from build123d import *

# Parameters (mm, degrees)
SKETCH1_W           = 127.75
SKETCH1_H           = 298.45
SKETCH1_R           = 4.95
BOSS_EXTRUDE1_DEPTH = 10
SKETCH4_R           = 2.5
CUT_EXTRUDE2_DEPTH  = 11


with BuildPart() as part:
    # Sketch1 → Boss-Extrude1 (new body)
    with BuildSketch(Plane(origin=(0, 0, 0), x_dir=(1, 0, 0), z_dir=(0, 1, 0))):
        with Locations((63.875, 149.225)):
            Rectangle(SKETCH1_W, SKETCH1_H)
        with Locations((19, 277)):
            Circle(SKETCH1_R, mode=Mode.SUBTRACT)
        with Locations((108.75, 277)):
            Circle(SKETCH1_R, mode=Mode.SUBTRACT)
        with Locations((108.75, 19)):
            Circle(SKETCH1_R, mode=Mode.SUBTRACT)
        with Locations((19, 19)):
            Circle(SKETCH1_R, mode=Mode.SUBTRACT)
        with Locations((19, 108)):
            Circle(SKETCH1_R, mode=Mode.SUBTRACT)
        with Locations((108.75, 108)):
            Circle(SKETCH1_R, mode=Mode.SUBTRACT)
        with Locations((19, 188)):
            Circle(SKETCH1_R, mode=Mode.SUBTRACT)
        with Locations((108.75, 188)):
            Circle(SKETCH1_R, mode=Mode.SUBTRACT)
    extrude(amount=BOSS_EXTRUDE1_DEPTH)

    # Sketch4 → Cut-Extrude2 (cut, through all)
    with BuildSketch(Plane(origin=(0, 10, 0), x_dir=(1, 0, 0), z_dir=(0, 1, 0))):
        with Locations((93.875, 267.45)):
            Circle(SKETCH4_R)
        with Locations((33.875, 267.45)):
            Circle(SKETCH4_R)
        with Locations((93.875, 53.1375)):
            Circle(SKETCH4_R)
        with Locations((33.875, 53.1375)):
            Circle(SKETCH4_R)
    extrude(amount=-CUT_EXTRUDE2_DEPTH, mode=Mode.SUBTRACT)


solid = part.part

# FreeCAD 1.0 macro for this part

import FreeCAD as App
import Part
import Sketcher


def add_polygon(sketch, points):
    """Adds a closed chain of lines whose ends are joined by coincident constraints."""
    first, n = sketch.GeometryCount, len(points)
    for a, b in zip(points, points[1:] + points[:1]):
        sketch.addGeometry(Part.LineSegment(App.Vector(*a, 0), App.Vector(*b, 0)), False)
    for i in range(n):
        sketch.addConstraint(Sketcher.Constraint("Coincident", first + i, 2, first + (i + 1) % n, 1))

doc = App.newDocument("Part")
body = doc.addObject("PartDesign::Body", "Body")

# Sketch on XZ plane
sketch1 = body.newObject("Sketcher::SketchObject", "Sketch")
sketch1.AttachmentSupport = (doc.getObject("XZ_Plane"), [""])
sketch1.MapMode = "FlatFace"
add_polygon(sketch1, [(0, -298.4), (0, 0), (127.8, 0), (127.8, -298.4)])  # lines 0-3
sketch1.addGeometry(Part.Circle(App.Vector(19, -19, 0), App.Vector(0, 0, 1), 5), False)  # 4
sketch1.addGeometry(Part.Circle(App.Vector(19, -108, 0), App.Vector(0, 0, 1), 5), False)  # 5
sketch1.addGeometry(Part.Circle(App.Vector(108.8, -19, 0), App.Vector(0, 0, 1), 5), False)  # 6
sketch1.addGeometry(Part.Circle(App.Vector(108.8, -108, 0), App.Vector(0, 0, 1), 5), False)  # 7
sketch1.addGeometry(Part.Circle(App.Vector(19, -188, 0), App.Vector(0, 0, 1), 5), False)  # 8
sketch1.addGeometry(Part.Circle(App.Vector(19, -277, 0), App.Vector(0, 0, 1), 5), False)  # 9
sketch1.addGeometry(Part.Circle(App.Vector(108.8, -188, 0), App.Vector(0, 0, 1), 5), False)  # 10
sketch1.addGeometry(Part.Circle(App.Vector(108.8, -277, 0), App.Vector(0, 0, 1), 5), False)  # 11
sketch1.addConstraint([
    Sketcher.Constraint("Vertical", 0),
    Sketcher.Constraint("Horizontal", 1),
    Sketcher.Constraint("Vertical", 2),
    Sketcher.Constraint("Horizontal", 3),
    Sketcher.Constraint("Coincident", 0, 2, -1, 1),
    Sketcher.Constraint("Equal", 4, 5),
    Sketcher.Constraint("Equal", 5, 6),
    Sketcher.Constraint("Equal", 6, 7),
    Sketcher.Constraint("Equal", 7, 8),
    Sketcher.Constraint("Equal", 8, 9),
    Sketcher.Constraint("Equal", 9, 10),
    Sketcher.Constraint("Equal", 10, 11),
    Sketcher.Constraint("Horizontal", 4, 3, 6, 3),
    Sketcher.Constraint("Horizontal", 5, 3, 7, 3),
    Sketcher.Constraint("Horizontal", 8, 3, 10, 3),
    Sketcher.Constraint("Horizontal", 9, 3, 11, 3),
    Sketcher.Constraint("Vertical", 4, 3, 5, 3),
    Sketcher.Constraint("Vertical", 6, 3, 7, 3),
    Sketcher.Constraint("Vertical", 5, 3, 8, 3),
    Sketcher.Constraint("Vertical", 8, 3, 9, 3),
    Sketcher.Constraint("Vertical", 7, 3, 10, 3),
    Sketcher.Constraint("Vertical", 10, 3, 11, 3),
    Sketcher.Constraint("Diameter", 4, 9.9),
    Sketcher.Constraint("DistanceX", -1, 1, 4, 3, 19.0),
    Sketcher.Constraint("DistanceY", 4, 3, -1, 1, 19.0),
    Sketcher.Constraint("DistanceY", 5, 3, -1, 1, 108.0),
    Sketcher.Constraint("DistanceY", 8, 3, -1, 1, 188.0),
    Sketcher.Constraint("DistanceY", 9, 3, -1, 1, 277.0),
    Sketcher.Constraint("DistanceX", 6, 3, 1, 2, 19.0),
    Sketcher.Constraint("DistanceX", 1, 1, 1, 2, 127.75),
    Sketcher.Constraint("DistanceY", 0, 1, 0, 2, 298.45),
])
pad1 = body.newObject("PartDesign::Pad", "Pad")
pad1.Profile = sketch1
pad1.Length = 10
pad1.Reversed = True

# Sketch on XZ plane
sketch2 = body.newObject("Sketcher::SketchObject", "Sketch001")
sketch2.AttachmentSupport = (doc.getObject("XZ_Plane"), [""])
sketch2.MapMode = "FlatFace"
sketch2.AttachmentOffset = App.Placement(App.Vector(0, 0, -10), App.Rotation())
sketch2.addGeometry([
    Part.Circle(App.Vector(93.9, -267.4, 0), App.Vector(0, 0, 1), 2.5),
    Part.Circle(App.Vector(33.9, -267.4, 0), App.Vector(0, 0, 1), 2.5),
    Part.Circle(App.Vector(93.9, -53.1, 0), App.Vector(0, 0, 1), 2.5),
    Part.Circle(App.Vector(33.9, -53.1, 0), App.Vector(0, 0, 1), 2.5),
], False)
sketch2.addConstraint([
    Sketcher.Constraint("Equal", 0, 1),
    Sketcher.Constraint("Equal", 1, 2),
    Sketcher.Constraint("Equal", 2, 3),
    Sketcher.Constraint("Horizontal", 0, 3, 1, 3),
    Sketcher.Constraint("Horizontal", 2, 3, 3, 3),
    Sketcher.Constraint("Vertical", 0, 3, 2, 3),
    Sketcher.Constraint("Vertical", 1, 3, 3, 3),
    Sketcher.Constraint("Diameter", 0, 5.0),
    Sketcher.Constraint("DistanceX", 1, 3, 0, 3, 60.0),
    Sketcher.Constraint("DistanceY", 0, 3, -1, 1, 267.45),
    Sketcher.Constraint("DistanceX", -1, 1, 0, 3, 93.875),
    Sketcher.Constraint("DistanceY", 2, 3, -1, 1, 53.1375),
])
pocket1 = body.newObject("PartDesign::Pocket", "Pocket")
pocket1.Profile = sketch2
pocket1.Type = "ThroughAll"
pocket1.Reversed = True

doc.recompute()
